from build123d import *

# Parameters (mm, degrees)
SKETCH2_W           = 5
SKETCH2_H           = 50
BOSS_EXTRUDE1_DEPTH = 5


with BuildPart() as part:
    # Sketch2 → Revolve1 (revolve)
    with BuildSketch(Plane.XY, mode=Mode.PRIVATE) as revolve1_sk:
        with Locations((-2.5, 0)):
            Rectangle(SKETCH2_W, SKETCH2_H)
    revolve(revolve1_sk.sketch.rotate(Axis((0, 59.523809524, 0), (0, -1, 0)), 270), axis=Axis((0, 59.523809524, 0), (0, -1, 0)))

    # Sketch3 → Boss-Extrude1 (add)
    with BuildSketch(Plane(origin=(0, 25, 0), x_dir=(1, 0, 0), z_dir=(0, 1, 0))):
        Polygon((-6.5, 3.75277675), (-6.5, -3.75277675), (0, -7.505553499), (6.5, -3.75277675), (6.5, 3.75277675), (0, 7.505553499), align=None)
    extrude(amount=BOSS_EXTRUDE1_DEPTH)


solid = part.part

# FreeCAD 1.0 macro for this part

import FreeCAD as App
import Part
import Sketcher
Q = App.Units.Quantity


def add_polygon(sketch, points):
    """Adds a closed chain of lines whose ends are joined by coincident constraints."""
    first, n = sketch.GeometryCount, len(points)
    for a, b in zip(points, points[1:] + points[:1]):
        sketch.addGeometry(Part.LineSegment(App.Vector(*a, 0), App.Vector(*b, 0)), False)
    for i in range(n):
        sketch.addConstraint(Sketcher.Constraint("Coincident", first + i, 2, first + (i + 1) % n, 1))

doc = App.newDocument("Part")
body = doc.addObject("PartDesign::Body", "Body")

sketch1 = body.newObject("Sketcher::SketchObject", "Sketch")
sketch1.AttachmentSupport = (doc.getObject("XY_Plane"), [""])
sketch1.MapMode = "FlatFace"
add_polygon(sketch1, [(-5, 25), (-5, -25), (0, -25), (0, 25)])
sketch1.addConstraint([
    Sketcher.Constraint("Vertical", 0),
    Sketcher.Constraint("Horizontal", 1),
    Sketcher.Constraint("Vertical", 2),
    Sketcher.Constraint("Horizontal", 3),
    Sketcher.Constraint("Symmetric", 1, 2, 2, 2, -1, 1),
    Sketcher.Constraint("DistanceX", 1, 1, 1, 2, Q("5 mm")),
    Sketcher.Constraint("DistanceY", 0, 2, 0, 1, Q("50 mm")),
])
revolution = body.newObject("PartDesign::Revolution", "Revolution")
revolution.Profile = sketch1
revolution.ReferenceAxis = (sketch1, ["V_Axis"])
revolution.Angle = 360

sketch2 = body.newObject("Sketcher::SketchObject", "Sketch001")
sketch2.AttachmentSupport = (doc.getObject("XZ_Plane"), [""])
sketch2.MapMode = "FlatFace"
sketch2.AttachmentOffset = App.Placement(App.Vector(0, 0, -25), App.Rotation())
add_polygon(sketch2, [(-6, -4), (-6, 4), (0, 8), (6, 4), (6, -4), (0, -8)])
sketch2.addConstraint([
    Sketcher.Constraint("Vertical", 0),
    Sketcher.Constraint("Vertical", 3),
    Sketcher.Constraint("Symmetric", 0, 2, 3, 2, -1, 1),
    Sketcher.Constraint("Symmetric", 1, 2, 4, 2, -1, 1),
    Sketcher.Constraint("PointOnObject", 1, 2, -2),
    Sketcher.Constraint("Parallel", 2, 5),
    Sketcher.Constraint("Horizontal", 0, 2, 2, 2),
    Sketcher.Constraint("Angle", 1, Q("30 deg")),
    Sketcher.Constraint("DistanceX", 0, 2, 2, 2, Q("13 mm")),
    Sketcher.Constraint("DistanceY", 0, 1, 0, 2, Q("7.505554 mm")),
])
pad1 = body.newObject("PartDesign::Pad", "Pad")
pad1.Profile = sketch2
pad1.Length = 5
pad1.Reversed = True

doc.recompute()
